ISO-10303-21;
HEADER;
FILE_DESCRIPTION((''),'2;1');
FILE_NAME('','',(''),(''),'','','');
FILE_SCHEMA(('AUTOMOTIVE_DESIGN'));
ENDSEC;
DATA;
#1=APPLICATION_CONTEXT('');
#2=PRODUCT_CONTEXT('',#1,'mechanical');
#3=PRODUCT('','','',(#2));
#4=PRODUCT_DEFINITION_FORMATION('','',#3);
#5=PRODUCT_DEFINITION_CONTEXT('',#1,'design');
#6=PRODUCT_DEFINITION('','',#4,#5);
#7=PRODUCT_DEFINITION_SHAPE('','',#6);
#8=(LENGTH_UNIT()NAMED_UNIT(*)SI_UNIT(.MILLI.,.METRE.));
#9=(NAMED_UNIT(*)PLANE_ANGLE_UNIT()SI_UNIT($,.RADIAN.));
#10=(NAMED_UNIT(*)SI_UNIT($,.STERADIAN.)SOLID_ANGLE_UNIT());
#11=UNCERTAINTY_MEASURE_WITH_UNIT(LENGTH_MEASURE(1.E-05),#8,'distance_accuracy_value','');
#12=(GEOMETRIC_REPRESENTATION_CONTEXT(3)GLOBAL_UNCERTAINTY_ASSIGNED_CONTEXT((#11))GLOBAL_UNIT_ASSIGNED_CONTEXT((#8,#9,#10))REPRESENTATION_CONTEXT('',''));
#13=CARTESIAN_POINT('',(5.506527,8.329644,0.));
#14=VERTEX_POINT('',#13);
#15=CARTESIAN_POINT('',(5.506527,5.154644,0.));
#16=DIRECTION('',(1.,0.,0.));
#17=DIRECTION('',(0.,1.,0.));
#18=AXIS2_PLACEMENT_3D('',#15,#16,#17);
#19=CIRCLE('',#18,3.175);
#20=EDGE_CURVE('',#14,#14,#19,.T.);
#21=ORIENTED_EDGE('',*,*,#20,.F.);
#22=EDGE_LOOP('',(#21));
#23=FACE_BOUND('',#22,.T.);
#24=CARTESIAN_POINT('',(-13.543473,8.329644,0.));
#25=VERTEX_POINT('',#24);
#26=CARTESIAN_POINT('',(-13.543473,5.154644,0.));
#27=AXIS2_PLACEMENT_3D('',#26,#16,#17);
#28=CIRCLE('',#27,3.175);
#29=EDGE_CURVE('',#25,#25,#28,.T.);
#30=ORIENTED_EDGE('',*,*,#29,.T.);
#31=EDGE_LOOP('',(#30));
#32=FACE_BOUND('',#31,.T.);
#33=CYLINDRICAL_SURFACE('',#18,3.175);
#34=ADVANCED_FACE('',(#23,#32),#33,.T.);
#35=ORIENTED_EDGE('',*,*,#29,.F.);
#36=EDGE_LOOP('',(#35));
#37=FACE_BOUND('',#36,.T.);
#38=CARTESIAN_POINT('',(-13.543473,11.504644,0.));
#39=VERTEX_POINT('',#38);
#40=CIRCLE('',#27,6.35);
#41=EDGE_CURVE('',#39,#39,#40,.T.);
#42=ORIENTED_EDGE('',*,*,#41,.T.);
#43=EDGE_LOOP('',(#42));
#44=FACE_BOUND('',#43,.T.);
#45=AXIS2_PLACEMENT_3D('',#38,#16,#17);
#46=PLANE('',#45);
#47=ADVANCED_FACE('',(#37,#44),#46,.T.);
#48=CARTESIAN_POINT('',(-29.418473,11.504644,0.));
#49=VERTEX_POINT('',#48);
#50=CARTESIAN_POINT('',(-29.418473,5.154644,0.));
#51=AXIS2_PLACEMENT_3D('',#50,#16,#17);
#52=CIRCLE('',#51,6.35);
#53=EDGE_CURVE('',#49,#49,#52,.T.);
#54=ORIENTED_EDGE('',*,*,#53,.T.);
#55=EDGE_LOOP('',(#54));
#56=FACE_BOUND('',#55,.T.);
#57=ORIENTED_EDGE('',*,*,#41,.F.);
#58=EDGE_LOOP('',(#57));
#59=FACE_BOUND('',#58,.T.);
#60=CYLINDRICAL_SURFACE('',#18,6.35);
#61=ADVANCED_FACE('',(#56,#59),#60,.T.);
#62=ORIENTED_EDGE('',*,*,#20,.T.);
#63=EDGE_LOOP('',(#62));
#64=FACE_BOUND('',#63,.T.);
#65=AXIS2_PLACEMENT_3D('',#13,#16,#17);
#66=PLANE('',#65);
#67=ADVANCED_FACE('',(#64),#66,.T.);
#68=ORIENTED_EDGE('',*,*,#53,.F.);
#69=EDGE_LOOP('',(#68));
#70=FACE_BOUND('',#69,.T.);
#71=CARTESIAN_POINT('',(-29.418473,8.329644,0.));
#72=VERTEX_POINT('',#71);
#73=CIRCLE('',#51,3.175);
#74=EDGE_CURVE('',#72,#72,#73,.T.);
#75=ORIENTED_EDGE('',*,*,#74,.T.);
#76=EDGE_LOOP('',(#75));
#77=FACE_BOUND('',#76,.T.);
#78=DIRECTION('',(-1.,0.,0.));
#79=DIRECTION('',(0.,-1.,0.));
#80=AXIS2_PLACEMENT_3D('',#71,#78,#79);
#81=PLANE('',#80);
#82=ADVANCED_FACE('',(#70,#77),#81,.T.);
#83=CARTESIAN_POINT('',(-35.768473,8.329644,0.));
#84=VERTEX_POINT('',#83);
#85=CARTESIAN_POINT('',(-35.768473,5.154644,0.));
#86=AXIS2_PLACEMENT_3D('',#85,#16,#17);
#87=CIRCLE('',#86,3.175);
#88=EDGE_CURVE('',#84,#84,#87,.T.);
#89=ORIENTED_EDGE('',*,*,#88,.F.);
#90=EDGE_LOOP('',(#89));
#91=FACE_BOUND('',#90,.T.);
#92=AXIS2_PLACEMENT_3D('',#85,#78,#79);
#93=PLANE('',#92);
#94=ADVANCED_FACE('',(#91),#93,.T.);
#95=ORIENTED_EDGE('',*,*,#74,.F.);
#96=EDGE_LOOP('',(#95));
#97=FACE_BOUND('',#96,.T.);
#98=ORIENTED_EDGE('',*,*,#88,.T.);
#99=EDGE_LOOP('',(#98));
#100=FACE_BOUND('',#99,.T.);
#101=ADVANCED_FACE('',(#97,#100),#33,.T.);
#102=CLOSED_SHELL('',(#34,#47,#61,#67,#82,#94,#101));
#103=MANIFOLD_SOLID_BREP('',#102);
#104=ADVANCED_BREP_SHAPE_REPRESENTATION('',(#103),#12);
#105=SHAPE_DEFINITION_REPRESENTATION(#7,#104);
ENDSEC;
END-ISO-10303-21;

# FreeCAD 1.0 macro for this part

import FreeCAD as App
import Part
import Sketcher
from FreeCAD import Vector
Q = App.Units.Quantity


def add_polygon(sketch, points):
    """Adds a closed chain of lines whose ends are joined by coincident constraints."""
    first, n = sketch.GeometryCount, len(points)
    for a, b in zip(points, points[1:] + points[:1]):
        sketch.addGeometry(Part.LineSegment(App.Vector(*a, 0), App.Vector(*b, 0)), False)
    for i in range(n):
        sketch.addConstraint(Sketcher.Constraint("Coincident", first + i, 2, first + (i + 1) % n, 1))

doc = App.newDocument("Part")
body = doc.addObject("PartDesign::Body", "Body")

sketch1 = body.newObject("Sketcher::SketchObject", "Sketch")
sketch1.AttachmentSupport = (doc.getObject("XY_Plane"), [""])
sketch1.MapMode = "FlatFace"
add_polygon(sketch1, [(-35.768473, 8.329644), (-35.768473, 5.154644), (5.506527, 5.154644), (5.506527, 8.329644), (-13.543473, 8.329644), (-13.543473, 11.504644), (-29.418473, 11.504644), (-29.418473, 8.329644)])
sketch1.addGeometry(Part.LineSegment(Vector(5.506527, 5.154644, 0), Vector(-35.768473, 5.154644, 0)), True)
sketch1.addConstraint(Sketcher.Constraint("Vertical", 0))
sketch1.addConstraint(Sketcher.Constraint("Horizontal", 1))
sketch1.addConstraint(Sketcher.Constraint("Vertical", 2))
sketch1.addConstraint(Sketcher.Constraint("Horizontal", 3))
sketch1.addConstraint(Sketcher.Constraint("Vertical", 4))
sketch1.addConstraint(Sketcher.Constraint("Horizontal", 5))
sketch1.addConstraint(Sketcher.Constraint("Vertical", 6))
sketch1.addConstraint(Sketcher.Constraint("Horizontal", 7))
sketch1.addConstraint(Sketcher.Constraint("Horizontal", 8))
sketch1.addConstraint(Sketcher.Constraint("Coincident", 8, 1, 1, 2))
sketch1.addConstraint(Sketcher.Constraint("Horizontal", 3, 2, 6, 2))
sketch1.addConstraint(Sketcher.Constraint("Vertical", 7, 2, 8, 2))
sketch1.addConstraint(Sketcher.Constraint("Equal", 2, 4))
sketch1.addConstraint(Sketcher.Constraint("DistanceX", 3, 2, 3, 1, Q("0.75 in")))
sketch1.addConstraint(Sketcher.Constraint("DistanceX", 7, 2, 7, 1, Q("0.25 in")))
sketch1.addConstraint(Sketcher.Constraint("DistanceX", 1, 1, 1, 2, Q("1.625 in")))
sketch1.addConstraint(Sketcher.Constraint("DistanceY", 0, 2, 0, 1, Q("0.125 in")))
sketch1.addConstraint(Sketcher.Constraint("DistanceX", 0, 2, -1, 1, Q("35.768473 mm")))
sketch1.addConstraint(Sketcher.Constraint("DistanceY", -1, 1, 0, 2, Q("5.154644 mm")))
revolution = body.newObject("PartDesign::Revolution", "Revolution")
revolution.Profile = sketch1
revolution.ReferenceAxis = (sketch1, ["Axis0"])
revolution.Angle = 360

doc.recompute()
